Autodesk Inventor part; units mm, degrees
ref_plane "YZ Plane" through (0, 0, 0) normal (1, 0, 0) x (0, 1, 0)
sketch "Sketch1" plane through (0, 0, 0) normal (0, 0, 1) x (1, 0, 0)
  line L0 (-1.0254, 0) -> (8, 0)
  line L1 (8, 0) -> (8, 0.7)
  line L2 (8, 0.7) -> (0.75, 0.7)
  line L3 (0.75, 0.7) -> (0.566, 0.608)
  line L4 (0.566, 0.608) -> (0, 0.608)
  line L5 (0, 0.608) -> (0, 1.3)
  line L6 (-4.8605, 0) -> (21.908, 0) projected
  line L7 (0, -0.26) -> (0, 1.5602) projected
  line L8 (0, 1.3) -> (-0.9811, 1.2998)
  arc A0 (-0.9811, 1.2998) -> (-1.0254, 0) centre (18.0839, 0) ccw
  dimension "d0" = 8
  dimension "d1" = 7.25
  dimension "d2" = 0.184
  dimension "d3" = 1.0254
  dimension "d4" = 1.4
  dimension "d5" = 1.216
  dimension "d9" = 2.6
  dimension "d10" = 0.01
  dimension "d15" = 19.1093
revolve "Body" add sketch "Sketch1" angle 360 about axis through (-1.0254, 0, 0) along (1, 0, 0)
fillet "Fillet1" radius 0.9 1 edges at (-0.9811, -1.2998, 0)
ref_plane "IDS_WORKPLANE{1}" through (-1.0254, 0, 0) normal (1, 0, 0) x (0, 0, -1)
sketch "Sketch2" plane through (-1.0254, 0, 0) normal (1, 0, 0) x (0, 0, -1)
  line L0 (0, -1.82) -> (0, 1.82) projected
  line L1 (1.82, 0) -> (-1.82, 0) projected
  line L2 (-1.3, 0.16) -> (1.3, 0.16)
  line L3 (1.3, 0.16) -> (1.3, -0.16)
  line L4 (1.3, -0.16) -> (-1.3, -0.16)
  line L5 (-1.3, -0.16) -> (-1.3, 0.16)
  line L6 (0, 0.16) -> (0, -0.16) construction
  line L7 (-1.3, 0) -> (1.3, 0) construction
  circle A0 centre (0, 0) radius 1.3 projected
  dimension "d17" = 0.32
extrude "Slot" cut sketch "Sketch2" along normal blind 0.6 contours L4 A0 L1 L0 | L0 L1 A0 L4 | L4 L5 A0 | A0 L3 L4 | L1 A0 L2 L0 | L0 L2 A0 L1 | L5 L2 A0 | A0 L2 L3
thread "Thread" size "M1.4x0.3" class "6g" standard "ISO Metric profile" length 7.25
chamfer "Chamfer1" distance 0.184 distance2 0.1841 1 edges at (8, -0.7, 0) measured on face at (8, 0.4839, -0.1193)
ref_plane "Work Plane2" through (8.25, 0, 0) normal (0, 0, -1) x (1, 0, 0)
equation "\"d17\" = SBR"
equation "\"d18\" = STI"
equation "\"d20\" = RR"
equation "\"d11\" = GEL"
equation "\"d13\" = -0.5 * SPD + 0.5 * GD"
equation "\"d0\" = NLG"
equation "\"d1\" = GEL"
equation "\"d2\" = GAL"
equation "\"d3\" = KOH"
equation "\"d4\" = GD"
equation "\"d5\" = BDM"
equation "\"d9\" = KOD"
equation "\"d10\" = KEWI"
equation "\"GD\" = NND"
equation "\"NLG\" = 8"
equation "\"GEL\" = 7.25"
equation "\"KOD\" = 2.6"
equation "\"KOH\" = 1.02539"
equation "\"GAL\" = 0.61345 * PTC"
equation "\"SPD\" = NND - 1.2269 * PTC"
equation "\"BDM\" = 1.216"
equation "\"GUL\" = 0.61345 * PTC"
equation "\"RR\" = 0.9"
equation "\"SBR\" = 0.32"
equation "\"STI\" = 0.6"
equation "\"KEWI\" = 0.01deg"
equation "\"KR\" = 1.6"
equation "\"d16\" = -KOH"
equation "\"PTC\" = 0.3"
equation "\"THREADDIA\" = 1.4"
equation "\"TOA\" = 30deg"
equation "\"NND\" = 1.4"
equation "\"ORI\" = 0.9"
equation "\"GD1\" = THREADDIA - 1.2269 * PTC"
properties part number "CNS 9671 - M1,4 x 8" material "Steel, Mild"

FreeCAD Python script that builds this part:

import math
import FreeCAD as App
import Part
import Sketcher

V = App.Vector


def edges_at(feature, points):
    """Names of the edges that pass closest to the given points."""
    edges = feature.Shape.Edges
    near = lambda p: min(range(len(edges)), key=lambda i: edges[i].distToShape(Part.Vertex(*p))[0])
    return sorted({f"Edge{near(p) + 1}" for p in points})

doc = App.newDocument("Part")
body = doc.addObject("PartDesign::Body", "Body")

sketch1 = body.newObject("Sketcher::SketchObject", "Sketch")
sketch1.AttachmentSupport = (doc.getObject("XY_Plane"), [""])
sketch1.MapMode = "FlatFace"
sketch1.addGeometry([
    Part.ArcOfCircle(Part.Circle(V(18.12, 0, 0), V(0, 0, 1), 19.15), math.radians(176.1), math.radians(179.99)),
    Part.LineSegment(V(-1.03, 0, 0), V(8, 0, 0)),
    Part.LineSegment(V(8, 0, 0), V(8, 0.7, 0)),
    Part.LineSegment(V(8, 0.7, 0), V(0.75, 0.7, 0)),
    Part.LineSegment(V(0.75, 0.7, 0), V(0.57, 0.61, 0)),
    Part.LineSegment(V(0.57, 0.61, 0), V(0, 0.61, 0)),
    Part.LineSegment(V(0, 0.61, 0), V(0, 1.3, 0)),
    Part.LineSegment(V(0, 1.3, 0), V(-0.98, 1.3, 0)),
], False)
sketch1.addConstraint([
    Sketcher.Constraint("Coincident", 0, 2, 1, 1),
    Sketcher.Constraint("Coincident", 1, 2, 2, 1),
    Sketcher.Constraint("Coincident", 2, 2, 3, 1),
    Sketcher.Constraint("Coincident", 3, 2, 4, 1),
    Sketcher.Constraint("Coincident", 4, 2, 5, 1),
    Sketcher.Constraint("Coincident", 5, 2, 6, 1),
    Sketcher.Constraint("Coincident", 6, 2, 7, 1),
    Sketcher.Constraint("Coincident", 7, 2, 0, 1),
    Sketcher.Constraint("Horizontal", 1),
    Sketcher.Constraint("Vertical", 2),
    Sketcher.Constraint("Horizontal", 3),
    Sketcher.Constraint("Horizontal", 5),
    Sketcher.Constraint("Vertical", 6),
    Sketcher.Constraint("Horizontal", 7),
    Sketcher.Constraint("PointOnObject", 0, 2, -1),
    Sketcher.Constraint("PointOnObject", 5, 2, -2),
    Sketcher.Constraint("DistanceX", -1, 1, 1, 2, 8.0),
    Sketcher.Constraint("DistanceX", 3, 2, 3, 1, 7.25),
    Sketcher.Constraint("DistanceY", 2, 1, 2, 2, 0.7),
    Sketcher.Constraint("DistanceX", 4, 2, 3, 2, 0.184),
    Sketcher.Constraint("DistanceX", 0, 2, -1, 1, 1.0254),
    Sketcher.Constraint("DistanceY", -1, 1, 6, 2, 1.3),
    Sketcher.Constraint("Radius", 0, 19.1464),
    Sketcher.Constraint("DistanceX", 7, 2, 7, 1, 0.981),
    Sketcher.Constraint("DistanceY", 6, 1, 6, 2, 0.692),
])
revolution = body.newObject("PartDesign::Revolution", "Revolution")
revolution.Profile = sketch1
revolution.ReferenceAxis = (sketch1, ["H_Axis"])
revolution.Angle = 360
doc.recompute()

fillet = body.newObject("PartDesign::Fillet", "Fillet")
fillet.Base = (revolution, edges_at(revolution, [(-0.981, -1.3, 0)]))
fillet.Radius = 0.9

sketch2 = body.newObject("Sketcher::SketchObject", "Sketch001")
sketch2.AttachmentSupport = (doc.getObject("YZ_Plane"), [""])
sketch2.MapMode = "FlatFace"
sketch2.AttachmentOffset = App.Placement(V(0, 0, -1.0254), App.Rotation())
sketch2.addGeometry([
    Part.LineSegment(V(-0.16, -1.3, 0), V(0.16, -1.3, 0)),
    Part.LineSegment(V(0.16, -1.3, 0), V(0.16, 1.3, 0)),
    Part.LineSegment(V(0.16, 1.3, 0), V(-0.16, 1.3, 0)),
    Part.LineSegment(V(-0.16, 1.3, 0), V(-0.16, -1.3, 0)),
], False)
sketch2.addConstraint([
    Sketcher.Constraint("Coincident", 0, 2, 1, 1),
    Sketcher.Constraint("Coincident", 1, 2, 2, 1),
    Sketcher.Constraint("Coincident", 2, 2, 3, 1),
    Sketcher.Constraint("Coincident", 3, 2, 0, 1),
    Sketcher.Constraint("Horizontal", 0),
    Sketcher.Constraint("Vertical", 1),
    Sketcher.Constraint("Horizontal", 2),
    Sketcher.Constraint("Vertical", 3),
    Sketcher.Constraint("Symmetric", 0, 2, 2, 2, -1, 1),
    Sketcher.Constraint("DistanceX", 0, 1, 0, 2, 0.32),
    Sketcher.Constraint("DistanceY", 1, 1, 1, 2, 2.6),
])
pocket1 = body.newObject("PartDesign::Pocket", "Pocket")
pocket1.Profile = sketch2
pocket1.Length = 0.6
pocket1.Reversed = True
doc.recompute()

chamfer = body.newObject("PartDesign::Chamfer", "Chamfer")
chamfer.Base = (pocket1, edges_at(pocket1, [(8, -0.7, 0)]))
chamfer.ChamferType = "Two distances"
chamfer.Size = 0.184
chamfer.Size2 = 0.1841

doc.recompute()
